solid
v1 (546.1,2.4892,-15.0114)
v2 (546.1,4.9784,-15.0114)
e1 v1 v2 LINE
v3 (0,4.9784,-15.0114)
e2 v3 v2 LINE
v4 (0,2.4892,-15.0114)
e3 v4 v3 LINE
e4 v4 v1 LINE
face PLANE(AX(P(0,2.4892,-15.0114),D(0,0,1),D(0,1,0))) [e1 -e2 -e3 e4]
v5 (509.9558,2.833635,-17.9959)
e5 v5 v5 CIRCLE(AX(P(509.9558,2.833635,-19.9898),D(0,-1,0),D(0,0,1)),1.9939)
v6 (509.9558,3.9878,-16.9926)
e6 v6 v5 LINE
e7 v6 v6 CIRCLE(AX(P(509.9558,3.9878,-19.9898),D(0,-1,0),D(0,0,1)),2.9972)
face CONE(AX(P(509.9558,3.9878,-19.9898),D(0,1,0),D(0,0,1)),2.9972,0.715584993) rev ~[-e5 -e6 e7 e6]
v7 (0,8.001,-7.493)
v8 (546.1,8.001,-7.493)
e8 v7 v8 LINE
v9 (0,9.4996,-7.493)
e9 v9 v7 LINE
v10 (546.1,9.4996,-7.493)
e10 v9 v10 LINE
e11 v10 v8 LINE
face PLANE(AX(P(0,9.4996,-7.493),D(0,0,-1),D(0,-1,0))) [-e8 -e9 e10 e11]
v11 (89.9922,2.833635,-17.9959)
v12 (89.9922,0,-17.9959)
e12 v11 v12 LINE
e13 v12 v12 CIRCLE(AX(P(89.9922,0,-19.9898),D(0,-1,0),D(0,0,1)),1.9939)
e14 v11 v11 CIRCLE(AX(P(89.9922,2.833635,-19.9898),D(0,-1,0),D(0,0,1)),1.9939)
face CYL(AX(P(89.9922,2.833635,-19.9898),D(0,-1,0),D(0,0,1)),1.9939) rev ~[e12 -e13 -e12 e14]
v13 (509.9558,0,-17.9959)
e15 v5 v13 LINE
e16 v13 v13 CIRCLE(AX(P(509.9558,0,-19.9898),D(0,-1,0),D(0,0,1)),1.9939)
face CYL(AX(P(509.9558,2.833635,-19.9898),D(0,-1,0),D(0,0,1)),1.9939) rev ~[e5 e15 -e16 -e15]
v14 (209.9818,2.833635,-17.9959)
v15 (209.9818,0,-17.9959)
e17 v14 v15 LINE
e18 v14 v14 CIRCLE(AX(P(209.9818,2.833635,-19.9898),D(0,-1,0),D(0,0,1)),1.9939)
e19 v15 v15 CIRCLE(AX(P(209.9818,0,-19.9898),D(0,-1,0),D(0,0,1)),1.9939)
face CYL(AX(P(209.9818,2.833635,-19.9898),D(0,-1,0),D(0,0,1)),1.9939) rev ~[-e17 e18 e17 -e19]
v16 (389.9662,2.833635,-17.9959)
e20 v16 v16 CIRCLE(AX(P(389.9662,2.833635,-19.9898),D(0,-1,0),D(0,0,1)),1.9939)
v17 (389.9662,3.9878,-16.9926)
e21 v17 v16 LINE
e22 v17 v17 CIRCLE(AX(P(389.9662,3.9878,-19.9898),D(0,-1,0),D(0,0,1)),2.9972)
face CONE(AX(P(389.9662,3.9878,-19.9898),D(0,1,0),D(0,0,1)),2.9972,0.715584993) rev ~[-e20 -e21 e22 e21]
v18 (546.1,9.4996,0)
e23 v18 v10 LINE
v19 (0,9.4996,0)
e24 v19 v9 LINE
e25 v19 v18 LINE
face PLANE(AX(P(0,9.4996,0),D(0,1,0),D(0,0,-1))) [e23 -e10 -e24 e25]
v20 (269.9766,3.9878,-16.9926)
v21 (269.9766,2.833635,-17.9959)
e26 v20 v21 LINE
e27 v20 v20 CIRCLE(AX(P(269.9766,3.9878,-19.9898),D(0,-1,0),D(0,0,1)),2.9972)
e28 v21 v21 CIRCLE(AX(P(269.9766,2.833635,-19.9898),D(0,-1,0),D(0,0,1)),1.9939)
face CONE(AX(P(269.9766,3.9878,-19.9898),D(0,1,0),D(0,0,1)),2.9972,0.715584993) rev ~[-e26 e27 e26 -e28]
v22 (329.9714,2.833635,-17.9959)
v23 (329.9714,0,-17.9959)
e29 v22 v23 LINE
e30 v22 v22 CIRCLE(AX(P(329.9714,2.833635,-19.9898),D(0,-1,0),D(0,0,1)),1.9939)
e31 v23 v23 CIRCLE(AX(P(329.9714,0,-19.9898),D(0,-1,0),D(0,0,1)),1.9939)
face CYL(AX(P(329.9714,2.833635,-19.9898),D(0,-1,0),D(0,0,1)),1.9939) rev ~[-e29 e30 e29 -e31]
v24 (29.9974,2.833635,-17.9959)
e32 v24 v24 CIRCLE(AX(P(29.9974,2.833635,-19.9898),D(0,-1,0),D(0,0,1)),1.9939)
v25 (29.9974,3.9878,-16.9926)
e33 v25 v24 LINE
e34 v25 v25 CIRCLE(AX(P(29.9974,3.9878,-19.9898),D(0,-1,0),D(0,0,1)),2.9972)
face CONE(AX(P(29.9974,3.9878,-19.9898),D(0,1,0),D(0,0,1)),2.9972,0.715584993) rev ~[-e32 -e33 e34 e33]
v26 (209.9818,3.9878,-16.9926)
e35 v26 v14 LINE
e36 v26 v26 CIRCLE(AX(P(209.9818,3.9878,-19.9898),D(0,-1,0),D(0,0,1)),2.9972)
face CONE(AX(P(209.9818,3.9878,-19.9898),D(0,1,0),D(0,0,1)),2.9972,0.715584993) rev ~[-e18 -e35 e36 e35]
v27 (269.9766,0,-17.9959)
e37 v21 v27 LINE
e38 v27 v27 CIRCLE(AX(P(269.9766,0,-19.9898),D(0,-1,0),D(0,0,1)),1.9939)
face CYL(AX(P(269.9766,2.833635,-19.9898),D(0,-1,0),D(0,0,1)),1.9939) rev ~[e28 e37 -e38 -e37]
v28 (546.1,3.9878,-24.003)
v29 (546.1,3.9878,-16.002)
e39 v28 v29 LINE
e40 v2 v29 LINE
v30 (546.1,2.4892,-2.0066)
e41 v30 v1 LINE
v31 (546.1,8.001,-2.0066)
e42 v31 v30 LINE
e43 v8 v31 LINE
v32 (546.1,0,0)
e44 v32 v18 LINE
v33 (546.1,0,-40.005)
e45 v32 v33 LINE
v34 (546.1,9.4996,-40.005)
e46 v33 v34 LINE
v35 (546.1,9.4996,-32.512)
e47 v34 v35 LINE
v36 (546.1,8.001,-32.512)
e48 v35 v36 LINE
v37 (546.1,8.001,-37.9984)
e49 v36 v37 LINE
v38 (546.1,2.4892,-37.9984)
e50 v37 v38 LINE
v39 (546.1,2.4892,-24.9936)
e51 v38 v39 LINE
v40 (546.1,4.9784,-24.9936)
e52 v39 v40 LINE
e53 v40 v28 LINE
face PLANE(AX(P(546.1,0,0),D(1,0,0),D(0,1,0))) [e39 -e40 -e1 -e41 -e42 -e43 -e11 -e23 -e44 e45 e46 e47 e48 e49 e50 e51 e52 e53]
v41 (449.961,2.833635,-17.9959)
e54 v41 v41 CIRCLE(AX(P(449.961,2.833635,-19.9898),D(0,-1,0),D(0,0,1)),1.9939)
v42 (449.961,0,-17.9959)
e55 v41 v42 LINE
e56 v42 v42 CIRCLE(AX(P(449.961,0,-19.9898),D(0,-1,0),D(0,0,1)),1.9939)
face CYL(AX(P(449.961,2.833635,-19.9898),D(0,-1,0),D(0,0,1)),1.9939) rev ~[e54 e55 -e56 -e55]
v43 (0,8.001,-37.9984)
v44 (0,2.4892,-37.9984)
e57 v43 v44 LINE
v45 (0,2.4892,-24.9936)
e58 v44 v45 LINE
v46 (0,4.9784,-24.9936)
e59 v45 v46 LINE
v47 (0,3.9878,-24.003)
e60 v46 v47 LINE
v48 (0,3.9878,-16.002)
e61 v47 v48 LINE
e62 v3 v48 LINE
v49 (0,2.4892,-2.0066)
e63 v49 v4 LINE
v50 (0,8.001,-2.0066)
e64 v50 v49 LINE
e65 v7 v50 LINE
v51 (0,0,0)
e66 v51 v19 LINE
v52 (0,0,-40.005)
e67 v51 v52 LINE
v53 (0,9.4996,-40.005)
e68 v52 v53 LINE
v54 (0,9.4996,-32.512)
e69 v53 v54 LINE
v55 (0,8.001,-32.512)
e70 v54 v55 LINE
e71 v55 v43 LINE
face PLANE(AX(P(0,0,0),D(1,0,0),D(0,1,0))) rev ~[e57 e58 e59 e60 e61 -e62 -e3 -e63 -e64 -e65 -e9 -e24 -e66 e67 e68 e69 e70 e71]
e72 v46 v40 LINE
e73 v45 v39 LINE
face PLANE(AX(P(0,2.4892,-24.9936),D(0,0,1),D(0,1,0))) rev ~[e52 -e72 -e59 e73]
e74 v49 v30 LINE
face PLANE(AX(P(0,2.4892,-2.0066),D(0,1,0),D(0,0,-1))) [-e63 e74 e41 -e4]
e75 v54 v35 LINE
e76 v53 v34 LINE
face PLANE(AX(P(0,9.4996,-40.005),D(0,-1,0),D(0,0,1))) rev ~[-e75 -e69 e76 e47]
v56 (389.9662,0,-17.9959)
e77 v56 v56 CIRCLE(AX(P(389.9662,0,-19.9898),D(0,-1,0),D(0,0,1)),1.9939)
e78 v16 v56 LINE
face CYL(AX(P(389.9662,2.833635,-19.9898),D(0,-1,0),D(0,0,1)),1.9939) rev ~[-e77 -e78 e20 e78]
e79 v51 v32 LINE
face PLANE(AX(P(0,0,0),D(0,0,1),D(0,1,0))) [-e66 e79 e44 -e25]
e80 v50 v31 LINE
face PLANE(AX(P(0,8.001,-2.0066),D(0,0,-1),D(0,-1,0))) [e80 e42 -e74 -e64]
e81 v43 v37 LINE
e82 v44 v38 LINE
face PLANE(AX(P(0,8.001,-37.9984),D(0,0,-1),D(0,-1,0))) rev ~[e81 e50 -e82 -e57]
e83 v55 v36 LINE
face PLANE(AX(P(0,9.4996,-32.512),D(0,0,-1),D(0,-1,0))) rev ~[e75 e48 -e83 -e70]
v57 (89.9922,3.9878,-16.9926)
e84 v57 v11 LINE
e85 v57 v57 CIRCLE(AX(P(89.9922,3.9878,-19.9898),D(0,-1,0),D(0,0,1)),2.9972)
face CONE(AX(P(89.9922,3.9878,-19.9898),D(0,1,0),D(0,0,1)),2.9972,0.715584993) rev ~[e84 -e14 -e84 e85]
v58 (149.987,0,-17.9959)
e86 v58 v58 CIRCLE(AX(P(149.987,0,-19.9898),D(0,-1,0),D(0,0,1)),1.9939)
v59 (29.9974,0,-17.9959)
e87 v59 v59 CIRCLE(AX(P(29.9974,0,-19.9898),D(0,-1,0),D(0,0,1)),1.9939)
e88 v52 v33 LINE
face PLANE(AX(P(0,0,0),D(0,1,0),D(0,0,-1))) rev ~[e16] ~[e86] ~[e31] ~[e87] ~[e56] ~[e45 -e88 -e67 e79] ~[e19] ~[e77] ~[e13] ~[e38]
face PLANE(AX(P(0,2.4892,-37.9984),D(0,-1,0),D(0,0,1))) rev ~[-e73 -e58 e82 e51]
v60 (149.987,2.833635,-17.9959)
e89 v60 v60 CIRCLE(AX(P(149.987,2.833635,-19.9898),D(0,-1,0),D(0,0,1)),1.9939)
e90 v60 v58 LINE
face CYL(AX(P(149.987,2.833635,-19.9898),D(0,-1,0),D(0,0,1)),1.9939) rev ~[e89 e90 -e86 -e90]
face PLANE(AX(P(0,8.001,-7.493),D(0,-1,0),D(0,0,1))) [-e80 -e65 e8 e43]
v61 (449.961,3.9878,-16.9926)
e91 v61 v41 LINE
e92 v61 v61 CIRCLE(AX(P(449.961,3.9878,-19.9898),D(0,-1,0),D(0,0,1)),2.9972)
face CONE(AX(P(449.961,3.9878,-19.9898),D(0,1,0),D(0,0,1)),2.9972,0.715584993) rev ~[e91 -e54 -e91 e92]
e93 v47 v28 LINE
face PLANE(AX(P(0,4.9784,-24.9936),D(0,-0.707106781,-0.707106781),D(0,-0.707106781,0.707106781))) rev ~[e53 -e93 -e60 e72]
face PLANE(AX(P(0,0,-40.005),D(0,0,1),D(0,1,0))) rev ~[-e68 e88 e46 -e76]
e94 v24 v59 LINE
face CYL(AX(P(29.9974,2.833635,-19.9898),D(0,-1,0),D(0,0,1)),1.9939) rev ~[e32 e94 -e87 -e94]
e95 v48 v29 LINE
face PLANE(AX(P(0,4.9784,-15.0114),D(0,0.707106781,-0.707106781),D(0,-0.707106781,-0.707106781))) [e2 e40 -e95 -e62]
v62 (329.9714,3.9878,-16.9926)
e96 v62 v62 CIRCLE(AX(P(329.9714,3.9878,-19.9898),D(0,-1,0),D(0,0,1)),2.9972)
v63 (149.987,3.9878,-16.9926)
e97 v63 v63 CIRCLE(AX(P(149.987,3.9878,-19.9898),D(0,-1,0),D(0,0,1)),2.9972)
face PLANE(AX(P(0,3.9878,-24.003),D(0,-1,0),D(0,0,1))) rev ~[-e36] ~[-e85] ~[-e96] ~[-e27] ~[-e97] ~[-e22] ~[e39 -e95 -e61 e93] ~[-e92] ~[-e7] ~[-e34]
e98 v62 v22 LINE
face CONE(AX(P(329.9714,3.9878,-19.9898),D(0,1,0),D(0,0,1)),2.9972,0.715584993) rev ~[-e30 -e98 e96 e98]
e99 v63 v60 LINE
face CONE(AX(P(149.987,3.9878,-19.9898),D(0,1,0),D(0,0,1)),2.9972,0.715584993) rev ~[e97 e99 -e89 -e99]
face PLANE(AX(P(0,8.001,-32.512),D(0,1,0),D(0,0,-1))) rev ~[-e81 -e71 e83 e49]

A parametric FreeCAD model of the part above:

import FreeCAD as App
import Part
import Sketcher
from FreeCAD import Vector
Q = App.Units.Quantity


def add_polygon(sketch, points):
    """Adds a closed chain of lines whose ends are joined by coincident constraints."""
    first, n = sketch.GeometryCount, len(points)
    for a, b in zip(points, points[1:] + points[:1]):
        sketch.addGeometry(Part.LineSegment(App.Vector(*a, 0), App.Vector(*b, 0)), False)
    for i in range(n):
        sketch.addConstraint(Sketcher.Constraint("Coincident", first + i, 2, first + (i + 1) % n, 1))

doc = App.newDocument("Part")
body = doc.addObject("PartDesign::Body", "Body")

sketch1 = body.newObject("Sketcher::SketchObject", "Sketch")
sketch1.AttachmentSupport = (doc.getObject("YZ_Plane"), [""])
sketch1.MapMode = "FlatFace"
add_polygon(sketch1, [(9.5, 0), (0, 0), (0, -40), (9.5, -40), (9.5, -32.5), (8, -32.5), (8, -38), (2.5, -38), (2.5, -25), (5, -25), (4, -24), (4, -16), (5, -15), (2.5, -15), (2.5, -2), (8, -2), (8, -7.5), (9.5, -7.5)])
sketch1.addConstraint([
    Sketcher.Constraint("Horizontal", 0),
    Sketcher.Constraint("Vertical", 1),
    Sketcher.Constraint("Horizontal", 2),
    Sketcher.Constraint("Vertical", 3),
    Sketcher.Constraint("Horizontal", 4),
    Sketcher.Constraint("Vertical", 5),
    Sketcher.Constraint("Horizontal", 6),
    Sketcher.Constraint("Vertical", 7),
    Sketcher.Constraint("Horizontal", 8),
    Sketcher.Constraint("Vertical", 10),
    Sketcher.Constraint("Horizontal", 12),
    Sketcher.Constraint("Vertical", 13),
    Sketcher.Constraint("Horizontal", 14),
    Sketcher.Constraint("Vertical", 15),
    Sketcher.Constraint("Horizontal", 16),
    Sketcher.Constraint("Vertical", 17),
    Sketcher.Constraint("Coincident", 0, 2, -1, 1),
    Sketcher.Constraint("Perpendicular", 9, 11),
    Sketcher.Constraint("Vertical", 8, 2, 11, 2),
    Sketcher.Constraint("Vertical", 7, 2, 12, 2),
    Sketcher.Constraint("Vertical", 5, 2, 14, 2),
    Sketcher.Constraint("Vertical", 3, 2, 16, 2),
    Sketcher.Constraint("Equal", 7, 13),
    Sketcher.Constraint("Equal", 5, 15),
    Sketcher.Constraint("Equal", 3, 17),
    Sketcher.Constraint("Equal", 9, 11),
    Sketcher.Constraint("DistanceX", 0, 2, 0, 1, Q("0.374 in")),
    Sketcher.Constraint("DistanceX", 4, 2, 4, 1, Q("0.059 in")),
    Sketcher.Constraint("DistanceX", 6, 2, 6, 1, Q("0.217 in")),
    Sketcher.Constraint("DistanceX", 8, 1, 8, 2, Q("0.098 in")),
    Sketcher.Constraint("DistanceY", 1, 2, 1, 1, Q("1.575 in")),
    Sketcher.Constraint("DistanceY", 3, 1, 3, 2, Q("0.295 in")),
    Sketcher.Constraint("DistanceY", 5, 2, 5, 1, Q("0.216 in")),
    Sketcher.Constraint("DistanceY", 7, 1, 7, 2, Q("0.512 in")),
    Sketcher.Constraint("DistanceX", 9, 2, 8, 2, Q("0.039 in")),
])
pad1 = body.newObject("PartDesign::Pad", "Pad")
pad1.Profile = sketch1
pad1.Length = Q("21.5 in")

sketch2 = body.newObject("Sketcher::SketchObject", "Sketch001")
sketch2.AttachmentSupport = (doc.getObject("XZ_Plane"), [""])
sketch2.MapMode = "FlatFace"
sketch2.AttachmentOffset = App.Placement(Vector(0, 0, -0.157 * 25.4), App.Rotation())
sketch2.addGeometry(Part.Circle(Vector(30, -20, 0), Vector(0, 0, 1), 2), False)
sketch2.addConstraint([
    Sketcher.Constraint("Diameter", 0, Q("0.157 in")),
    Sketcher.Constraint("DistanceX", -1, 1, 0, 3, Q("1.181 in")),
    Sketcher.Constraint("DistanceY", 0, 3, -1, 1, Q("0.787 in")),
])
doc.recompute()
hole = body.newObject("PartDesign::Hole", "Hole")
hole.Profile = sketch2
hole.ThreadType = "None"
hole.Diameter = Q("0.157 in")
hole.DepthType = "ThroughAll"
hole.HoleCutType = "Countersink"
hole.HoleCutDiameter = Q("0.236 in")
hole.HoleCutCountersinkAngle = 82
hole.Reversed = True
doc.recompute()

linearpattern = body.newObject("PartDesign::LinearPattern", "LinearPattern")
linearpattern.Originals = [hole]
linearpattern.Direction = (doc.getObject("X_Axis"), [""])
linearpattern.Mode = "offset"
linearpattern.Offset = Q("2.362 in")
linearpattern.Occurrences = 9
body.Tip = linearpattern

doc.recompute()
